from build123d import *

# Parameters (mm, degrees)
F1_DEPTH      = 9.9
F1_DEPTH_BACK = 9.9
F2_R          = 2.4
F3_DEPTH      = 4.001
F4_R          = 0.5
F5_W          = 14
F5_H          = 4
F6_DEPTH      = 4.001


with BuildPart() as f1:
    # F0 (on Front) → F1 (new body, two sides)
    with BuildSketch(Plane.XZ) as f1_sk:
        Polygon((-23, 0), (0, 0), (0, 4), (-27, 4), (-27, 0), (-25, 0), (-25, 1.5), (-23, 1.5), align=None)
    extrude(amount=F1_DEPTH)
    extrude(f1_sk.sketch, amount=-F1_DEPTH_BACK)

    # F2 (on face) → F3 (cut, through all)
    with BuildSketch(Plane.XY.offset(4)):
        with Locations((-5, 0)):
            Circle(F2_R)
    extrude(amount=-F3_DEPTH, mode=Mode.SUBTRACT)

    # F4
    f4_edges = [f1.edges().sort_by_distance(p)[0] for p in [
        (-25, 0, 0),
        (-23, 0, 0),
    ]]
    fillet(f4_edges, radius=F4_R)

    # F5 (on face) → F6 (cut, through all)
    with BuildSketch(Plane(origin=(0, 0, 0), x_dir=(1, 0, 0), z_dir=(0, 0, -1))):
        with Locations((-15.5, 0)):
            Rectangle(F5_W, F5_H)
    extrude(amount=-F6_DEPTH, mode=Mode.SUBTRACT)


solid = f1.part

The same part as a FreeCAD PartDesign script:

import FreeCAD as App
import Part
import Sketcher


def edges_at(feature, points):
    """Names of the edges that pass closest to the given points."""
    edges = feature.Shape.Edges
    near = lambda p: min(range(len(edges)), key=lambda i: edges[i].distToShape(Part.Vertex(*p))[0])
    return sorted({f"Edge{near(p) + 1}" for p in points})

doc = App.newDocument("Part")
params = doc.addObject("Spreadsheet::Sheet", "Params")
for row, (alias, value) in enumerate([
    ("sketch1_width", "23 mm"),
    ("sketch1_width2", "27 mm"),
    ("sketch1_height", "4 mm"),
    ("sketch1_height2", "1.5 mm"),
    ("pad1_length", "9.9 mm"),
    ("pad1_length2", "9.9 mm"),
    ("sketch2_diameter", "4.8 mm"),
    ("fillet_radius", "0.5 mm"),
    ("sketch3_width", "14 mm"),
    ("sketch3_height", "4 mm"),
], start=1):
    params.set(f"A{row}", alias)
    params.set(f"B{row}", "=" + value)
    params.setAlias(f"B{row}", alias)

body = doc.addObject("PartDesign::Body", "Body")

sketch1 = body.newObject("Sketcher::SketchObject", "Sketch")
sketch1.AttachmentSupport = (doc.getObject("XZ_Plane"), [""])
sketch1.MapMode = "FlatFace"
sketch1.addGeometry([
    Part.LineSegment(App.Vector(-23, 0, 0), App.Vector(0, 0, 0)),
    Part.LineSegment(App.Vector(0, 0, 0), App.Vector(0, 4, 0)),
    Part.LineSegment(App.Vector(0, 4, 0), App.Vector(-27, 4, 0)),
    Part.LineSegment(App.Vector(-27, 4, 0), App.Vector(-27, 0, 0)),
    Part.LineSegment(App.Vector(-27, 0, 0), App.Vector(-25, 0, 0)),
    Part.LineSegment(App.Vector(-25, 0, 0), App.Vector(-25, 1.5, 0)),
    Part.LineSegment(App.Vector(-25, 1.5, 0), App.Vector(-23, 1.5, 0)),
    Part.LineSegment(App.Vector(-23, 1.5, 0), App.Vector(-23, 0, 0)),
], False)
sketch1.addConstraint([
    Sketcher.Constraint("Coincident", 0, 2, 1, 1),
    Sketcher.Constraint("Coincident", 1, 2, 2, 1),
    Sketcher.Constraint("Coincident", 2, 2, 3, 1),
    Sketcher.Constraint("Coincident", 3, 2, 4, 1),
    Sketcher.Constraint("Coincident", 4, 2, 5, 1),
    Sketcher.Constraint("Coincident", 5, 2, 6, 1),
    Sketcher.Constraint("Coincident", 6, 2, 7, 1),
    Sketcher.Constraint("Coincident", 7, 2, 0, 1),
    Sketcher.Constraint("Horizontal", 0),
    Sketcher.Constraint("Vertical", 1),
    Sketcher.Constraint("Horizontal", 2),
    Sketcher.Constraint("Vertical", 3),
    Sketcher.Constraint("Horizontal", 4),
    Sketcher.Constraint("Vertical", 5),
    Sketcher.Constraint("Horizontal", 6),
    Sketcher.Constraint("Vertical", 7),
    Sketcher.Constraint("Coincident", 0, 2, -1, 1),
    Sketcher.Constraint("PointOnObject", 3, 2, -1),
    Sketcher.Constraint("Equal", 4, 6),
    Sketcher.Constraint("DistanceX", 0, 1, 0, 2, 23.0),
    Sketcher.Constraint("DistanceX", 2, 2, 2, 1, 27.0),
    Sketcher.Constraint("DistanceY", 1, 1, 1, 2, 4.0),
    Sketcher.Constraint("DistanceY", 5, 1, 5, 2, 1.5),
])
sketch1.setExpression("Constraints[19]", "Params.sketch1_width")
sketch1.setExpression("Constraints[20]", "Params.sketch1_width2")
sketch1.setExpression("Constraints[21]", "Params.sketch1_height")
sketch1.setExpression("Constraints[22]", "Params.sketch1_height2")
pad1 = body.newObject("PartDesign::Pad", "Pad")
pad1.Profile = sketch1
pad1.Type = "TwoLengths"
pad1.setExpression("Length", "Params.pad1_length")
pad1.setExpression("Length2", "Params.pad1_length2")

sketch2 = body.newObject("Sketcher::SketchObject", "Sketch001")
sketch2.AttachmentSupport = (doc.getObject("XY_Plane"), [""])
sketch2.MapMode = "FlatFace"
sketch2.AttachmentOffset = App.Placement(App.Vector(0, 0, 4), App.Rotation())
sketch2.addGeometry(Part.Circle(App.Vector(-5, 0, 0), App.Vector(0, 0, 1), 2.4), False)
sketch2.addConstraint([
    Sketcher.Constraint("PointOnObject", 0, 3, -1),
    Sketcher.Constraint("Diameter", 0, 4.8),
    Sketcher.Constraint("DistanceX", 0, 3, -1, 1, 5.0),
])
sketch2.setExpression("Constraints[1]", "Params.sketch2_diameter")
pocket1 = body.newObject("PartDesign::Pocket", "Pocket")
pocket1.Profile = sketch2
pocket1.Type = "ThroughAll"
doc.recompute()

fillet = body.newObject("PartDesign::Fillet", "Fillet")
fillet.Base = (pocket1, edges_at(pocket1, [(-25, 0, 0), (-23, 0, 0)]))
fillet.setExpression("Radius", "Params.fillet_radius")

sketch3 = body.newObject("Sketcher::SketchObject", "Sketch002")
sketch3.AttachmentSupport = (doc.getObject("XY_Plane"), [""])
sketch3.MapMode = "FlatFace"
sketch3.addGeometry([
    Part.LineSegment(App.Vector(-22.5, -2, 0), App.Vector(-22.5, 2, 0)),
    Part.LineSegment(App.Vector(-22.5, 2, 0), App.Vector(-8.5, 2, 0)),
    Part.LineSegment(App.Vector(-8.5, 2, 0), App.Vector(-8.5, -2, 0)),
    Part.LineSegment(App.Vector(-8.5, -2, 0), App.Vector(-22.5, -2, 0)),
], False)
sketch3.addConstraint([
    Sketcher.Constraint("Coincident", 0, 2, 1, 1),
    Sketcher.Constraint("Coincident", 1, 2, 2, 1),
    Sketcher.Constraint("Coincident", 2, 2, 3, 1),
    Sketcher.Constraint("Coincident", 3, 2, 0, 1),
    Sketcher.Constraint("Vertical", 0),
    Sketcher.Constraint("Horizontal", 1),
    Sketcher.Constraint("Vertical", 2),
    Sketcher.Constraint("Horizontal", 3),
    Sketcher.Constraint("DistanceX", 1, 1, 1, 2, 14.0),
    Sketcher.Constraint("DistanceY", 0, 1, 0, 2, 4.0),
    Sketcher.Constraint("DistanceY", -1, 1, 0, 2, 2.0),
    Sketcher.Constraint("DistanceX", 0, 2, -1, 1, 22.5),
])
sketch3.setExpression("Constraints[8]", "Params.sketch3_width")
sketch3.setExpression("Constraints[9]", "Params.sketch3_height")
pocket2 = body.newObject("PartDesign::Pocket", "Pocket001")
pocket2.Profile = sketch3
pocket2.Type = "ThroughAll"
pocket2.Reversed = True

doc.recompute()
